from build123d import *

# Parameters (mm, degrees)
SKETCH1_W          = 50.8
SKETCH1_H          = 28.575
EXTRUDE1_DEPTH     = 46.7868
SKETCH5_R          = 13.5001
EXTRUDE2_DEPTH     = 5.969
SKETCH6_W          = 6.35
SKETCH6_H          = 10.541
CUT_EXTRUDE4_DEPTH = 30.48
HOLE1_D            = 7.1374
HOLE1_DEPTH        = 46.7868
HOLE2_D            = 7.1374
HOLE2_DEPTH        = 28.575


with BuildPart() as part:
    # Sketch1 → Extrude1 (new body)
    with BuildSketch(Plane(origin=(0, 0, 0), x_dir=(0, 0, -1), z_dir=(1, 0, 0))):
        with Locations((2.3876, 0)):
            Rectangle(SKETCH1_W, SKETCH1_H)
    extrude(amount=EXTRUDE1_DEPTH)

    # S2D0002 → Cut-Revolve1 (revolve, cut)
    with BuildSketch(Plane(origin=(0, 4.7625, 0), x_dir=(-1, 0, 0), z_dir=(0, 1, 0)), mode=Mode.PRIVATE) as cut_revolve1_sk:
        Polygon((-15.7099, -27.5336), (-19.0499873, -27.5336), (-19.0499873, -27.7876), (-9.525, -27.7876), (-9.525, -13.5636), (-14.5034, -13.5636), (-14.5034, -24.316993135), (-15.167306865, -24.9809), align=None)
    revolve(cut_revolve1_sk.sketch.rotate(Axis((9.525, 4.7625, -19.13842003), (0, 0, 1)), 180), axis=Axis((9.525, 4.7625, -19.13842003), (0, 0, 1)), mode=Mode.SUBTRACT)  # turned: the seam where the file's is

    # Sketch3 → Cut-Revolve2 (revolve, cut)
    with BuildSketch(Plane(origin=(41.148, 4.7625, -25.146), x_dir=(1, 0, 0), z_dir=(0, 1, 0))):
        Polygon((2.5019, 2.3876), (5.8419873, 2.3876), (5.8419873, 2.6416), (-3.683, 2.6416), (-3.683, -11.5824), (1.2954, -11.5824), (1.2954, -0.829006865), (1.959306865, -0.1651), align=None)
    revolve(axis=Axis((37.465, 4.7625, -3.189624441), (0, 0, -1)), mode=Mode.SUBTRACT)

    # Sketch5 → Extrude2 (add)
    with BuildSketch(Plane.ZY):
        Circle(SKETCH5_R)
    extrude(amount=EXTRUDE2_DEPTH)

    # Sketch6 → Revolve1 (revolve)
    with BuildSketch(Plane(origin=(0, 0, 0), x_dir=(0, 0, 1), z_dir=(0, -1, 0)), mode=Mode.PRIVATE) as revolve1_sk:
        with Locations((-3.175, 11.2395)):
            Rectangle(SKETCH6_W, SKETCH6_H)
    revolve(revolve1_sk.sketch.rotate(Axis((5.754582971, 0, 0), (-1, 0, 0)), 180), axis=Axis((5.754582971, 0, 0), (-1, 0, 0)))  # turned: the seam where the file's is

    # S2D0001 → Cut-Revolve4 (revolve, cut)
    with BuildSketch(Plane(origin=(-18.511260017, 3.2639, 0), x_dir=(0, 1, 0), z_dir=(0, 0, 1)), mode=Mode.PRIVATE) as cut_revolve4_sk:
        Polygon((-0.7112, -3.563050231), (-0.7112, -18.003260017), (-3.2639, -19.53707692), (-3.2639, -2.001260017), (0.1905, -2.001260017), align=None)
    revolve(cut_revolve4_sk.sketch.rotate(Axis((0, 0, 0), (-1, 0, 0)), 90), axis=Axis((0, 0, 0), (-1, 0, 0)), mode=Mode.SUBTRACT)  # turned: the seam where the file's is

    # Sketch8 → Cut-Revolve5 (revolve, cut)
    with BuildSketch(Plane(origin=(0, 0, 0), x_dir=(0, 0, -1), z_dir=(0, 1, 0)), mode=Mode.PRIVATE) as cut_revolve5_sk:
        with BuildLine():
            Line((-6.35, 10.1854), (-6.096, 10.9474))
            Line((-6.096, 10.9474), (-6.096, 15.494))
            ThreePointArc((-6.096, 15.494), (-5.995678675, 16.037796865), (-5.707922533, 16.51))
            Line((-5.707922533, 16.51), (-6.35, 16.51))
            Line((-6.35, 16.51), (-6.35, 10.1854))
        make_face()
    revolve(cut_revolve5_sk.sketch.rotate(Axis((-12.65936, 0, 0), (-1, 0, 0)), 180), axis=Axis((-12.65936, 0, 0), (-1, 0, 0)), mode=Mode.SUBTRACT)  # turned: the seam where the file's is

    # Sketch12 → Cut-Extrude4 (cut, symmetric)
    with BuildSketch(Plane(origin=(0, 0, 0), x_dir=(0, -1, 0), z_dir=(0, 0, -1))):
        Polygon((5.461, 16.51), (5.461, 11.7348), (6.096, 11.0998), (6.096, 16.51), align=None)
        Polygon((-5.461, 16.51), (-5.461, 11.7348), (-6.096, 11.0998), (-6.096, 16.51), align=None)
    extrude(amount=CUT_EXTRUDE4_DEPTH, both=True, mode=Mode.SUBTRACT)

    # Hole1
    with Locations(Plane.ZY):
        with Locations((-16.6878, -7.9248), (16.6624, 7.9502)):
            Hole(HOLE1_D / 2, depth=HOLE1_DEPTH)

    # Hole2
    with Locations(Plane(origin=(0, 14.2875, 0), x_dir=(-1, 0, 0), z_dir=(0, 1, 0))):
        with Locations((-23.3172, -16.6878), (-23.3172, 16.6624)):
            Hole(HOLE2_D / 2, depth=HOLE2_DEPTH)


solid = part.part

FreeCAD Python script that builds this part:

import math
import FreeCAD as App
import Part
import Sketcher
Q = App.Units.Quantity

doc = App.newDocument("Part")
body = doc.addObject("PartDesign::Body", "Body")

sketch1 = body.newObject("Sketcher::SketchObject", "Sketch")
sketch1.AttachmentSupport = (doc.getObject("YZ_Plane"), [""])
sketch1.MapMode = "FlatFace"
sketch1.addGeometry([
    Part.LineSegment(App.Vector(14, 23, 0), App.Vector(-14, 23, 0)),
    Part.LineSegment(App.Vector(-14, 23, 0), App.Vector(-14, -28, 0)),
    Part.LineSegment(App.Vector(-14, -28, 0), App.Vector(14, -28, 0)),
    Part.LineSegment(App.Vector(14, -28, 0), App.Vector(14, 23, 0)),
], False)
sketch1.addConstraint([
    Sketcher.Constraint("Coincident", 0, 2, 1, 1),
    Sketcher.Constraint("Coincident", 1, 2, 2, 1),
    Sketcher.Constraint("Coincident", 2, 2, 3, 1),
    Sketcher.Constraint("Coincident", 3, 2, 0, 1),
    Sketcher.Constraint("Horizontal", 0),
    Sketcher.Constraint("Vertical", 1),
    Sketcher.Constraint("Horizontal", 2),
    Sketcher.Constraint("Vertical", 3),
    Sketcher.Constraint("DistanceY", 1, 2, 1, 1, Q("2 in")),
    Sketcher.Constraint("DistanceX", 0, 2, 0, 1, Q("1.125 in")),
    Sketcher.Constraint("DistanceX", 0, 2, -1, 1, Q("0.5625 in")),
    Sketcher.Constraint("DistanceY", -1, 1, 0, 2, Q("0.906 in")),
])
pad1 = body.newObject("PartDesign::Pad", "Pad")
pad1.Profile = sketch1
pad1.Length = Q("1.842 in")

sketch2 = body.newObject("Sketcher::SketchObject", "Sketch001")
sketch2.AttachmentSupport = (doc.getObject("XZ_Plane"), [""])
sketch2.MapMode = "FlatFace"
sketch2.AttachmentOffset = App.Placement(App.Vector(0, 0, -0.1875 * 25.4), App.Rotation())
sketch2.addGeometry([
    Part.LineSegment(App.Vector(15.71, -27.53, 0), App.Vector(19.05, -27.53, 0)),
    Part.LineSegment(App.Vector(19.05, -27.53, 0), App.Vector(19.05, -27.79, 0)),
    Part.LineSegment(App.Vector(19.05, -27.79, 0), App.Vector(9.53, -27.79, 0)),
    Part.LineSegment(App.Vector(9.53, -27.79, 0), App.Vector(9.53, -13.56, 0)),
    Part.LineSegment(App.Vector(9.53, -13.56, 0), App.Vector(14.5, -13.56, 0)),
    Part.LineSegment(App.Vector(14.5, -13.56, 0), App.Vector(14.5, -24.32, 0)),
    Part.LineSegment(App.Vector(14.5, -24.32, 0), App.Vector(15.17, -24.98, 0)),
    Part.LineSegment(App.Vector(15.17, -24.98, 0), App.Vector(15.71, -27.53, 0)),
], False)
sketch2.addGeometry(Part.LineSegment(App.Vector(9.53, -27.79, 0), App.Vector(9.53, -13.56, 0)), True)
sketch2.addConstraint([
    Sketcher.Constraint("Coincident", 0, 2, 1, 1),
    Sketcher.Constraint("Coincident", 1, 2, 2, 1),
    Sketcher.Constraint("Coincident", 2, 2, 3, 1),
    Sketcher.Constraint("Coincident", 3, 2, 4, 1),
    Sketcher.Constraint("Coincident", 4, 2, 5, 1),
    Sketcher.Constraint("Coincident", 5, 2, 6, 1),
    Sketcher.Constraint("Coincident", 6, 2, 7, 1),
    Sketcher.Constraint("Coincident", 7, 2, 0, 1),
    Sketcher.Constraint("Horizontal", 0),
    Sketcher.Constraint("Vertical", 1),
    Sketcher.Constraint("Horizontal", 2),
    Sketcher.Constraint("Vertical", 3),
    Sketcher.Constraint("Horizontal", 4),
    Sketcher.Constraint("Vertical", 5),
    Sketcher.Constraint("Vertical", 8),
    Sketcher.Constraint("Coincident", 8, 1, 2, 2),
    Sketcher.Constraint("Horizontal", 4, 2, 8, 2),
    Sketcher.Constraint("Angle", 6, Q("-45 deg")),
    Sketcher.Constraint("Angle", 7, Q("-78 deg")),
    Sketcher.Constraint("DistanceY", 1, 2, 1, 1, Q("0.01 in")),
    Sketcher.Constraint("DistanceY", 3, 1, 3, 2, Q("0.56 in")),
    Sketcher.Constraint("DistanceX", 4, 1, 4, 2, Q("0.196 in")),
    Sketcher.Constraint("DistanceY", 0, 2, -1, 1, Q("1.084 in")),
    Sketcher.Constraint("DistanceX", -1, 1, 2, 2, Q("0.375 in")),
    Sketcher.Constraint("DistanceY", 6, 2, -1, 1, Q("0.9835 in")),
    Sketcher.Constraint("DistanceX", -1, 1, 7, 2, Q("0.6185 in")),
    Sketcher.Constraint("DistanceX", 0, 1, 0, 2, 3.340087),
])
groove = body.newObject("PartDesign::Groove", "Groove")
groove.Profile = sketch2
groove.ReferenceAxis = (sketch2, ["Axis0"])
groove.Angle = 360

sketch3 = body.newObject("Sketcher::SketchObject", "Sketch002")
sketch3.AttachmentSupport = (doc.getObject("XZ_Plane"), [""])
sketch3.MapMode = "FlatFace"
sketch3.AttachmentOffset = App.Placement(App.Vector(0, 0, -0.1875 * 25.4), App.Rotation())
sketch3.addGeometry([
    Part.LineSegment(App.Vector(43.65, -27.53, 0), App.Vector(46.99, -27.53, 0)),
    Part.LineSegment(App.Vector(46.99, -27.53, 0), App.Vector(46.99, -27.79, 0)),
    Part.LineSegment(App.Vector(46.99, -27.79, 0), App.Vector(37.47, -27.79, 0)),
    Part.LineSegment(App.Vector(37.47, -27.79, 0), App.Vector(37.47, -13.56, 0)),
    Part.LineSegment(App.Vector(37.47, -13.56, 0), App.Vector(42.44, -13.56, 0)),
    Part.LineSegment(App.Vector(42.44, -13.56, 0), App.Vector(42.44, -24.32, 0)),
    Part.LineSegment(App.Vector(42.44, -24.32, 0), App.Vector(43.11, -24.98, 0)),
    Part.LineSegment(App.Vector(43.11, -24.98, 0), App.Vector(43.65, -27.53, 0)),
], False)
sketch3.addGeometry(Part.LineSegment(App.Vector(37.47, -13.56, 0), App.Vector(37.47, -27.79, 0)), True)
sketch3.addConstraint([
    Sketcher.Constraint("Coincident", 0, 2, 1, 1),
    Sketcher.Constraint("Coincident", 1, 2, 2, 1),
    Sketcher.Constraint("Coincident", 2, 2, 3, 1),
    Sketcher.Constraint("Coincident", 3, 2, 4, 1),
    Sketcher.Constraint("Coincident", 4, 2, 5, 1),
    Sketcher.Constraint("Coincident", 5, 2, 6, 1),
    Sketcher.Constraint("Coincident", 6, 2, 7, 1),
    Sketcher.Constraint("Coincident", 7, 2, 0, 1),
    Sketcher.Constraint("Horizontal", 0),
    Sketcher.Constraint("Vertical", 1),
    Sketcher.Constraint("Horizontal", 2),
    Sketcher.Constraint("Vertical", 3),
    Sketcher.Constraint("Horizontal", 4),
    Sketcher.Constraint("Vertical", 5),
    Sketcher.Constraint("Vertical", 8),
    Sketcher.Constraint("Coincident", 8, 1, 3, 2),
    Sketcher.Constraint("Horizontal", 1, 2, 8, 2),
    Sketcher.Constraint("Angle", 6, Q("-45 deg")),
    Sketcher.Constraint("Angle", 7, Q("-78 deg")),
    Sketcher.Constraint("DistanceY", 1, 2, 1, 1, Q("0.01 in")),
    Sketcher.Constraint("DistanceY", 3, 1, 3, 2, Q("0.56 in")),
    Sketcher.Constraint("DistanceX", 4, 1, 4, 2, Q("0.196 in")),
    Sketcher.Constraint("DistanceY", 0, 2, -1, 1, Q("1.084 in")),
    Sketcher.Constraint("DistanceX", -1, 1, 2, 2, Q("1.475 in")),
    Sketcher.Constraint("DistanceY", 6, 2, -1, 1, Q("0.9835 in")),
    Sketcher.Constraint("DistanceX", -1, 1, 7, 2, Q("1.7185 in")),
    Sketcher.Constraint("DistanceX", 0, 1, 0, 2, 3.340087),
])
groove2 = body.newObject("PartDesign::Groove", "Groove001")
groove2.Profile = sketch3
groove2.ReferenceAxis = (sketch3, ["Axis0"])
groove2.Angle = 360

sketch4 = body.newObject("Sketcher::SketchObject", "Sketch003")
sketch4.AttachmentSupport = (doc.getObject("YZ_Plane"), [""])
sketch4.MapMode = "FlatFace"
sketch4.addGeometry(Part.Circle(App.Vector(0, 0, 0), App.Vector(0, 0, 1), 14), False)
sketch4.addConstraint([
    Sketcher.Constraint("Coincident", 0, 3, -1, 1),
    Sketcher.Constraint("Diameter", 0, Q("1.063 in")),
])
pad2 = body.newObject("PartDesign::Pad", "Pad001")
pad2.Profile = sketch4
pad2.Length = Q("0.235 in")
pad2.Reversed = True

sketch5 = body.newObject("Sketcher::SketchObject", "Sketch004")
sketch5.AttachmentSupport = (doc.getObject("XZ_Plane"), [""])
sketch5.MapMode = "FlatFace"
sketch5.addGeometry([
    Part.LineSegment(App.Vector(-17, -6, 0), App.Vector(-6, -6, 0)),
    Part.LineSegment(App.Vector(-6, -6, 0), App.Vector(-6, 0, 0)),
    Part.LineSegment(App.Vector(-6, 0, 0), App.Vector(-17, 0, 0)),
    Part.LineSegment(App.Vector(-17, 0, 0), App.Vector(-17, -6, 0)),
], False)
sketch5.addConstraint([
    Sketcher.Constraint("Coincident", 0, 2, 1, 1),
    Sketcher.Constraint("Coincident", 1, 2, 2, 1),
    Sketcher.Constraint("Coincident", 2, 2, 3, 1),
    Sketcher.Constraint("Coincident", 3, 2, 0, 1),
    Sketcher.Constraint("Horizontal", 0),
    Sketcher.Constraint("Vertical", 1),
    Sketcher.Constraint("Horizontal", 2),
    Sketcher.Constraint("Vertical", 3),
    Sketcher.Constraint("PointOnObject", 1, 2, -1),
    Sketcher.Constraint("DistanceY", 1, 1, 1, 2, Q("0.25 in")),
    Sketcher.Constraint("DistanceX", 0, 1, 0, 2, Q("0.415 in")),
    Sketcher.Constraint("DistanceX", 2, 2, -1, 1, Q("0.65 in")),
])
revolution = body.newObject("PartDesign::Revolution", "Revolution")
revolution.Profile = sketch5
revolution.ReferenceAxis = (sketch5, ["H_Axis"])
revolution.Angle = 360

sketch6 = body.newObject("Sketcher::SketchObject", "Sketch005")
sketch6.AttachmentSupport = (doc.getObject("XY_Plane"), [""])
sketch6.MapMode = "FlatFace"
sketch6.addGeometry([
    Part.LineSegment(App.Vector(-0.5, 2.6, 0), App.Vector(-14.9, 2.6, 0)),
    Part.LineSegment(App.Vector(-14.9, 2.6, 0), App.Vector(-16.5, 3.5, 0)),
    Part.LineSegment(App.Vector(-16.5, 3.5, 0), App.Vector(-16.5, 0, 0)),
    Part.LineSegment(App.Vector(-16.5, 0, 0), App.Vector(1, 0, 0)),
    Part.LineSegment(App.Vector(1, 0, 0), App.Vector(-0.5, 2.6, 0)),
], False)
sketch6.addConstraint([
    Sketcher.Constraint("Coincident", 0, 2, 1, 1),
    Sketcher.Constraint("Coincident", 1, 2, 2, 1),
    Sketcher.Constraint("Coincident", 2, 2, 3, 1),
    Sketcher.Constraint("Coincident", 3, 2, 4, 1),
    Sketcher.Constraint("Coincident", 4, 2, 0, 1),
    Sketcher.Constraint("Horizontal", 0),
    Sketcher.Constraint("Vertical", 2),
    Sketcher.Constraint("Horizontal", 3),
    Sketcher.Constraint("PointOnObject", 2, 2, -1),
    Sketcher.Constraint("Angle", 1, Q("150 deg")),
    Sketcher.Constraint("Angle", 4, Q("121 deg")),
    Sketcher.Constraint("DistanceY", 2, 2, 2, 1, Q("0.136 in")),
    Sketcher.Constraint("DistanceX", 1, 2, -1, 1, Q("0.65 in")),
    Sketcher.Constraint("DistanceX", 4, 2, -1, 1, Q("0.02 in")),
    Sketcher.Constraint("Distance", 1, Q("0.071 in")),
])
groove3 = body.newObject("PartDesign::Groove", "Groove002")
groove3.Profile = sketch6
groove3.ReferenceAxis = (sketch6, ["H_Axis"])
groove3.Angle = 360

sketch7 = body.newObject("Sketcher::SketchObject", "Sketch006")
sketch7.AttachmentSupport = (doc.getObject("XZ_Plane"), [""])
sketch7.MapMode = "FlatFace"
sketch7.addGeometry([
    Part.LineSegment(App.Vector(-10.2, 6.3, 0), App.Vector(-10.9, 6.1, 0)),
    Part.LineSegment(App.Vector(-10.9, 6.1, 0), App.Vector(-15.5, 6.1, 0)),
    Part.ArcOfCircle(Part.Circle(App.Vector(-15.5, 4.6, 0), App.Vector(0, 0, 1), 1.5), math.radians(90), math.radians(132)),
    Part.LineSegment(App.Vector(-16.5, 5.7, 0), App.Vector(-16.5, 6.3, 0)),
    Part.LineSegment(App.Vector(-16.5, 6.3, 0), App.Vector(-10.2, 6.3, 0)),
], False)
sketch7.addConstraint([
    Sketcher.Constraint("Coincident", 0, 2, 1, 1),
    Sketcher.Constraint("Tangent", 1, 2, 2, 1),
    Sketcher.Constraint("Coincident", 2, 2, 3, 1),
    Sketcher.Constraint("Coincident", 3, 2, 4, 1),
    Sketcher.Constraint("Coincident", 4, 2, 0, 1),
    Sketcher.Constraint("Horizontal", 1),
    Sketcher.Constraint("Vertical", 3),
    Sketcher.Constraint("Horizontal", 4),
    Sketcher.Constraint("Radius", 2, Q("0.06 in")),
    Sketcher.Constraint("DistanceX", 1, 2, 1, 1, Q("0.179 in")),
    Sketcher.Constraint("DistanceX", 4, 1, 4, 2, Q("0.249 in")),
    Sketcher.Constraint("DistanceX", 2, 3, -1, 1, Q("0.61 in")),
    Sketcher.Constraint("DistanceY", -1, 1, 2, 3, Q("0.18 in")),
    Sketcher.Constraint("DistanceX", 2, 2, -1, 1, Q("0.65 in")),
    Sketcher.Constraint("DistanceY", -1, 1, 3, 2, Q("0.25 in")),
])
groove4 = body.newObject("PartDesign::Groove", "Groove003")
groove4.Profile = sketch7
groove4.ReferenceAxis = (sketch7, ["H_Axis"])
groove4.Angle = 360

sketch8 = body.newObject("Sketcher::SketchObject", "Sketch007")
sketch8.AttachmentSupport = (doc.getObject("XY_Plane"), [""])
sketch8.MapMode = "FlatFace"
sketch8.addGeometry([
    Part.LineSegment(App.Vector(-16.5, -5.5, 0), App.Vector(-11.7, -5.5, 0)),
    Part.LineSegment(App.Vector(-11.7, -5.5, 0), App.Vector(-11.1, -6.1, 0)),
    Part.LineSegment(App.Vector(-11.1, -6.1, 0), App.Vector(-16.5, -6.1, 0)),
    Part.LineSegment(App.Vector(-16.5, -6.1, 0), App.Vector(-16.5, -5.5, 0)),
    Part.LineSegment(App.Vector(-11.7, 5.5, 0), App.Vector(-16.5, 5.5, 0)),
    Part.LineSegment(App.Vector(-16.5, 5.5, 0), App.Vector(-16.5, 6.1, 0)),
    Part.LineSegment(App.Vector(-16.5, 6.1, 0), App.Vector(-11.1, 6.1, 0)),
    Part.LineSegment(App.Vector(-11.1, 6.1, 0), App.Vector(-11.7, 5.5, 0)),
], False)
sketch8.addConstraint([
    Sketcher.Constraint("Coincident", 0, 2, 1, 1),
    Sketcher.Constraint("Coincident", 1, 2, 2, 1),
    Sketcher.Constraint("Coincident", 2, 2, 3, 1),
    Sketcher.Constraint("Coincident", 3, 2, 0, 1),
    Sketcher.Constraint("Coincident", 4, 2, 5, 1),
    Sketcher.Constraint("Coincident", 5, 2, 6, 1),
    Sketcher.Constraint("Coincident", 6, 2, 7, 1),
    Sketcher.Constraint("Coincident", 7, 2, 4, 1),
    Sketcher.Constraint("Horizontal", 0),
    Sketcher.Constraint("Horizontal", 2),
    Sketcher.Constraint("Vertical", 3),
    Sketcher.Constraint("Horizontal", 4),
    Sketcher.Constraint("Vertical", 5),
    Sketcher.Constraint("Horizontal", 6),
    Sketcher.Constraint("Symmetric", 3, 2, 4, 2, -1),
    Sketcher.Constraint("Symmetric", 1, 2, 6, 2, -1),
    Sketcher.Constraint("Perpendicular", 1, 7),
    Sketcher.Constraint("Vertical", 0, 2, 7, 2),
    Sketcher.Constraint("DistanceX", 0, 1, 0, 2, Q("0.188 in")),
    Sketcher.Constraint("DistanceX", 2, 2, 2, 1, Q("0.213 in")),
    Sketcher.Constraint("DistanceY", 1, 2, -1, 1, Q("0.24 in")),
    Sketcher.Constraint("DistanceX", 2, 2, -1, 1, Q("0.65 in")),
])
pocket1 = body.newObject("PartDesign::Pocket", "Pocket")
pocket1.Profile = sketch8
pocket1.Length = Q("2.4 in")
pocket1.Midplane = True

sketch9 = body.newObject("Sketcher::SketchObject", "Sketch008")
sketch9.AttachmentSupport = (doc.getObject("YZ_Plane"), [""])
sketch9.MapMode = "FlatFace"
sketch9.addGeometry([
    Part.Circle(App.Vector(-7.9, -16.7, 0), App.Vector(0, 0, 1), 3.6),
    Part.Circle(App.Vector(8, 16.7, 0), App.Vector(0, 0, 1), 3.6),
], False)
sketch9.addConstraint([
    Sketcher.Constraint("Equal", 0, 1),
    Sketcher.Constraint("Diameter", 0, Q("0.281 in")),
    Sketcher.Constraint("DistanceX", 0, 3, -1, 1, Q("0.312 in")),
    Sketcher.Constraint("DistanceY", 0, 3, -1, 1, Q("0.657 in")),
    Sketcher.Constraint("DistanceX", -1, 1, 1, 3, Q("0.313 in")),
    Sketcher.Constraint("DistanceY", -1, 1, 1, 3, Q("0.656 in")),
])
doc.recompute()
hole = body.newObject("PartDesign::Hole", "Hole")
hole.Profile = sketch9
hole.ThreadType = "None"
hole.Diameter = Q("0.281 in")
hole.DepthType = "Dimension"
hole.Depth = Q("1.842 in")
hole.DrillPoint = "Flat"
hole.Reversed = True

sketch10 = body.newObject("Sketcher::SketchObject", "Sketch009")
sketch10.AttachmentSupport = (doc.getObject("XZ_Plane"), [""])
sketch10.MapMode = "FlatFace"
sketch10.AttachmentOffset = App.Placement(App.Vector(0, 0, -0.5625 * 25.4), App.Rotation())
sketch10.addGeometry([
    Part.Circle(App.Vector(23.3, -16.7, 0), App.Vector(0, 0, 1), 3.6),
    Part.Circle(App.Vector(23.3, 16.7, 0), App.Vector(0, 0, 1), 3.6),
], False)
sketch10.addConstraint([
    Sketcher.Constraint("Equal", 0, 1),
    Sketcher.Constraint("Vertical", 0, 3, 1, 3),
    Sketcher.Constraint("Diameter", 0, Q("0.281 in")),
    Sketcher.Constraint("DistanceX", -1, 1, 0, 3, Q("0.918 in")),
    Sketcher.Constraint("DistanceY", 0, 3, -1, 1, Q("0.657 in")),
    Sketcher.Constraint("DistanceY", -1, 1, 1, 3, Q("0.656 in")),
])
doc.recompute()
hole2 = body.newObject("PartDesign::Hole", "Hole001")
hole2.Profile = sketch10
hole2.ThreadType = "None"
hole2.Diameter = Q("0.281 in")
hole2.DepthType = "Dimension"
hole2.Depth = Q("1.125 in")
hole2.DrillPoint = "Flat"
hole2.Reversed = True

doc.recompute()
